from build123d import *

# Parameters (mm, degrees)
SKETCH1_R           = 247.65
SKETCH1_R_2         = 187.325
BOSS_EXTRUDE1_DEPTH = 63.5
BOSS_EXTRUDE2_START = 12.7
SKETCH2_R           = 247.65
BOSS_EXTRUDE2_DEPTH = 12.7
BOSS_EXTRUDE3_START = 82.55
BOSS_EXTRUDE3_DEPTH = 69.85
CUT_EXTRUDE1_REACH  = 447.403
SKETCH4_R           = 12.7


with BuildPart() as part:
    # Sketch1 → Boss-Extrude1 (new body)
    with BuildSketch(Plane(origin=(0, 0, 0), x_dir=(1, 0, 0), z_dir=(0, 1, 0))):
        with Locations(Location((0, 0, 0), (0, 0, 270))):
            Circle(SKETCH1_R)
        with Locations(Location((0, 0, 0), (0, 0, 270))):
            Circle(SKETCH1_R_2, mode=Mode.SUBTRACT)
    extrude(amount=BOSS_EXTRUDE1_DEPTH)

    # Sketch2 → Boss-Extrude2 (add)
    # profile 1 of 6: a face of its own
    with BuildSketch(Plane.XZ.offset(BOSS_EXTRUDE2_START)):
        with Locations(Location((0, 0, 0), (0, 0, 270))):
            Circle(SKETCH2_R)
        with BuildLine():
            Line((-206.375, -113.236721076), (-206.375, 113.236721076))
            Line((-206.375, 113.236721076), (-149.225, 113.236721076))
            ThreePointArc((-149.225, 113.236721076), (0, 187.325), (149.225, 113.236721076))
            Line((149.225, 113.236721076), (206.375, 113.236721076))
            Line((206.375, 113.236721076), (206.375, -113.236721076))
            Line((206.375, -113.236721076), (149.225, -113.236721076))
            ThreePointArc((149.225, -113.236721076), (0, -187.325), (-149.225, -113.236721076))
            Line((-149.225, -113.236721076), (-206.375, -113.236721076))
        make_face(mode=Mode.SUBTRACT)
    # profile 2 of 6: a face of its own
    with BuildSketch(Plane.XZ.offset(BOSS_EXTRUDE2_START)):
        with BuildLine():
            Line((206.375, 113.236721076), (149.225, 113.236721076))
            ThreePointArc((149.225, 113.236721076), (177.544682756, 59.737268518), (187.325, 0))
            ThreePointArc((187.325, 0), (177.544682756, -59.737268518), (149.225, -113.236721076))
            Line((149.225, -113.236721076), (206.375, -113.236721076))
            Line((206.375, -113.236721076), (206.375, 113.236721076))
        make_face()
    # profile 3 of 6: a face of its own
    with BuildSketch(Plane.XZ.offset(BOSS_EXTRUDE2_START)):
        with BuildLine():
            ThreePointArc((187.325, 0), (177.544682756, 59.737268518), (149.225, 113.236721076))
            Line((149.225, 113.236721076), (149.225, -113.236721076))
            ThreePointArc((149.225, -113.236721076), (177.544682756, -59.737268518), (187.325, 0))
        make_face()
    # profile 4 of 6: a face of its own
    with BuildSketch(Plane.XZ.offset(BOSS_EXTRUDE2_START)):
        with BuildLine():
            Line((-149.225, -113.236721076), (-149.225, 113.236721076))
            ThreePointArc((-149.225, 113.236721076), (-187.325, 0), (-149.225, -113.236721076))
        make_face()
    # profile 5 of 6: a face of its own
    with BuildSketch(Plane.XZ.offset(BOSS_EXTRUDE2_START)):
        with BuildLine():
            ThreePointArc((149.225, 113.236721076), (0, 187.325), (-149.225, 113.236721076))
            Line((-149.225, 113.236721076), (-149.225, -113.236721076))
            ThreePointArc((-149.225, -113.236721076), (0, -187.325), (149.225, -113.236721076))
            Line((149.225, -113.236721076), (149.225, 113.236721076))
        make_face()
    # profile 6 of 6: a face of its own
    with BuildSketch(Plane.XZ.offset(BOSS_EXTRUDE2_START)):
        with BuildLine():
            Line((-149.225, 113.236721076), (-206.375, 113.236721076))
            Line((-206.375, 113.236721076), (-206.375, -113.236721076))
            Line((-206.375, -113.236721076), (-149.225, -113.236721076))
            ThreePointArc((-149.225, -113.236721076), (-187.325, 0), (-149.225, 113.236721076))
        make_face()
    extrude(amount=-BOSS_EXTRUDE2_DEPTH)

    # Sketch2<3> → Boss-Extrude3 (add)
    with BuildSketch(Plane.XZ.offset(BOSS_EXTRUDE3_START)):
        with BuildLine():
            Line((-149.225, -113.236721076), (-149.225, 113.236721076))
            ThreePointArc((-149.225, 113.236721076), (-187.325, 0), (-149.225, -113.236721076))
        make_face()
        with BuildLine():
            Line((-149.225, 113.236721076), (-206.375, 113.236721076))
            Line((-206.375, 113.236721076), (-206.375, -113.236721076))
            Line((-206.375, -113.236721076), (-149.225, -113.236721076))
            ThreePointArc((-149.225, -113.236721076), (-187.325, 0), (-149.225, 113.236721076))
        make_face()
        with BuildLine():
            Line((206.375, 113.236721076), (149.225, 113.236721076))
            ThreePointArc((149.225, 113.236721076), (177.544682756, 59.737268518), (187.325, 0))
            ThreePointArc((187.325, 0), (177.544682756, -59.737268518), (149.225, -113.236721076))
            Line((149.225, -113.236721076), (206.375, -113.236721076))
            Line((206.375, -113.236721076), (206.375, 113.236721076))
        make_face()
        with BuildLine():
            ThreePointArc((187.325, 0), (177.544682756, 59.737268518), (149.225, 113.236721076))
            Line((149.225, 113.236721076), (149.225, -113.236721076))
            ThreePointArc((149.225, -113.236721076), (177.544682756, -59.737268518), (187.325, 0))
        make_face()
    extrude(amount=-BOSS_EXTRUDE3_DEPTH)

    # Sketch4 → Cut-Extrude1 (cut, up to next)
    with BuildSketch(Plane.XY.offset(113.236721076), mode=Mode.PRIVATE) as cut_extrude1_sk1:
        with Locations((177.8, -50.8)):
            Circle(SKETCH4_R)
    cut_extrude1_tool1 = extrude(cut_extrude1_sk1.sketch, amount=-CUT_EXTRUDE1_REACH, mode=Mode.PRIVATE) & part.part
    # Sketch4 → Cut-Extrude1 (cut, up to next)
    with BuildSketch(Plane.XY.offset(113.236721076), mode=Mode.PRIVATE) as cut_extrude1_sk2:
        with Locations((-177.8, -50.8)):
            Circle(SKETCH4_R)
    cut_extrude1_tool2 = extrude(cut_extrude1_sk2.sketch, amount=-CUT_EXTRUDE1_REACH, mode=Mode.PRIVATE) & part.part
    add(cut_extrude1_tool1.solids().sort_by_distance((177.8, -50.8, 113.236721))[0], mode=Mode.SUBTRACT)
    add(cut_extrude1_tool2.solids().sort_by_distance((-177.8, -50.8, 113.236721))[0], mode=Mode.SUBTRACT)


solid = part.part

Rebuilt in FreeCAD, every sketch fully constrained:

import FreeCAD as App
import Part
import Sketcher
from FreeCAD import Vector
Q = App.Units.Quantity

doc = App.newDocument("Part")
body = doc.addObject("PartDesign::Body", "Body")

sketch1 = body.newObject("Sketcher::SketchObject", "Sketch")
sketch1.AttachmentSupport = (doc.getObject("XZ_Plane"), [""])
sketch1.MapMode = "FlatFace"
sketch1.addGeometry([
    Part.Circle(Vector(0, 0, 0), Vector(0, 0, 1), 248),
    Part.Circle(Vector(0, 0, 0), Vector(0, 0, 1), 187),
], False)
sketch1.addConstraint([
    Sketcher.Constraint("Coincident", 0, 3, -1, 1),
    Sketcher.Constraint("Coincident", 1, 3, -1, 1),
    Sketcher.Constraint("Diameter", 0, Q("19.5 in")),
    Sketcher.Constraint("Diameter", 1, Q("14.75 in")),
])
pad1 = body.newObject("PartDesign::Pad", "Pad")
pad1.Profile = sketch1
pad1.Length = Q("2.5 in")
pad1.Reversed = True

sketch2 = body.newObject("Sketcher::SketchObject", "Sketch001")
sketch2.AttachmentSupport = (doc.getObject("XZ_Plane"), [""])
sketch2.MapMode = "FlatFace"
sketch2.AttachmentOffset = App.Placement(Vector(0, 0, 0.5 * 25.4), App.Rotation())
sketch2.addGeometry(Part.Circle(Vector(0, 0, 0), Vector(0, 0, 1), 248), False)
sketch2.addConstraint([
    Sketcher.Constraint("Coincident", 0, 3, -1, 1),
    Sketcher.Constraint("Diameter", 0, Q("19.5 in")),
])
pad2 = body.newObject("PartDesign::Pad", "Pad001")
pad2.Profile = sketch2
pad2.Length = Q("0.5 in")
pad2.Reversed = True

sketch3 = body.newObject("Sketcher::SketchObject", "Sketch002")
sketch3.AttachmentSupport = (doc.getObject("XZ_Plane"), [""])
sketch3.MapMode = "FlatFace"
sketch3.AttachmentOffset = App.Placement(Vector(0, 0, 3.25 * 25.4), App.Rotation())
sketch3.addGeometry([
    Part.LineSegment(Vector(-149, -113, 0), Vector(-149, 113, 0)),
    Part.LineSegment(Vector(-149, 113, 0), Vector(-206, 113, 0)),
    Part.LineSegment(Vector(-206, 113, 0), Vector(-206, -113, 0)),
    Part.LineSegment(Vector(-206, -113, 0), Vector(-149, -113, 0)),
    Part.LineSegment(Vector(206, 113, 0), Vector(149, 113, 0)),
    Part.LineSegment(Vector(149, 113, 0), Vector(149, -113, 0)),
    Part.LineSegment(Vector(149, -113, 0), Vector(206, -113, 0)),
    Part.LineSegment(Vector(206, -113, 0), Vector(206, 113, 0)),
], False)
sketch3.addConstraint([
    Sketcher.Constraint("Coincident", 0, 2, 1, 1),
    Sketcher.Constraint("Coincident", 1, 2, 2, 1),
    Sketcher.Constraint("Coincident", 2, 2, 3, 1),
    Sketcher.Constraint("Coincident", 3, 2, 0, 1),
    Sketcher.Constraint("Coincident", 4, 2, 5, 1),
    Sketcher.Constraint("Coincident", 5, 2, 6, 1),
    Sketcher.Constraint("Coincident", 6, 2, 7, 1),
    Sketcher.Constraint("Coincident", 7, 2, 4, 1),
    Sketcher.Constraint("Vertical", 0),
    Sketcher.Constraint("Horizontal", 1),
    Sketcher.Constraint("Vertical", 2),
    Sketcher.Constraint("Horizontal", 3),
    Sketcher.Constraint("Horizontal", 4),
    Sketcher.Constraint("Vertical", 5),
    Sketcher.Constraint("Horizontal", 6),
    Sketcher.Constraint("Vertical", 7),
    Sketcher.Constraint("Symmetric", 3, 2, 4, 2, -1, 1),
    Sketcher.Constraint("Symmetric", 1, 2, 6, 2, -1, 1),
    Sketcher.Constraint("Horizontal", 1, 2, 4, 2),
    Sketcher.Constraint("DistanceX", 1, 2, 4, 2, Q("14 in")),
    Sketcher.Constraint("DistanceX", 1, 2, 1, 1, Q("2.25 in")),
    Sketcher.Constraint("DistanceY", 0, 1, 0, 2, 226.473442),
])
pad3 = body.newObject("PartDesign::Pad", "Pad002")
pad3.Profile = sketch3
pad3.Length = Q("2.75 in")
pad3.Reversed = True

sketch4 = body.newObject("Sketcher::SketchObject", "Sketch003")
sketch4.AttachmentSupport = (doc.getObject("XY_Plane"), [""])
sketch4.MapMode = "FlatFace"
sketch4.AttachmentOffset = App.Placement(Vector(0, 0, 113.236721), App.Rotation())
sketch4.addGeometry(Part.Circle(Vector(178, -51, 0), Vector(0, 0, 1), 13), False)
sketch4.addConstraint([
    Sketcher.Constraint("Diameter", 0, Q("1 in")),
    Sketcher.Constraint("DistanceX", -1, 1, 0, 3, Q("7 in")),
    Sketcher.Constraint("DistanceY", 0, 3, -1, 1, Q("2 in")),
])
pocket1 = body.newObject("PartDesign::Pocket", "Pocket")
pocket1.Profile = sketch4
pocket1.Type = "UpToFirst"

sketch5 = body.newObject("Sketcher::SketchObject", "Sketch004")
sketch5.AttachmentSupport = (doc.getObject("XY_Plane"), [""])
sketch5.MapMode = "FlatFace"
sketch5.AttachmentOffset = App.Placement(Vector(0, 0, 113.236721), App.Rotation())
sketch5.addGeometry(Part.Circle(Vector(-178, -51, 0), Vector(0, 0, 1), 13), False)
sketch5.addConstraint([
    Sketcher.Constraint("Diameter", 0, Q("1 in")),
    Sketcher.Constraint("DistanceX", 0, 3, -1, 1, Q("7 in")),
    Sketcher.Constraint("DistanceY", 0, 3, -1, 1, Q("2 in")),
])
pocket2 = body.newObject("PartDesign::Pocket", "Pocket001")
pocket2.Profile = sketch5
pocket2.Type = "UpToFirst"

doc.recompute()
